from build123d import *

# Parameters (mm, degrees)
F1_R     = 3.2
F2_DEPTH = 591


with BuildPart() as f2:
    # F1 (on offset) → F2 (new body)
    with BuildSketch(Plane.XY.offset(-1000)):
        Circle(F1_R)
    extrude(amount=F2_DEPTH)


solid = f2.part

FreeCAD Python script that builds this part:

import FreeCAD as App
import Part
import Sketcher

doc = App.newDocument("Part")
body = doc.addObject("PartDesign::Body", "Body")

# Sketch on XY plane
sketch1 = body.newObject("Sketcher::SketchObject", "Sketch")
sketch1.AttachmentSupport = (doc.getObject("XY_Plane"), [""])
sketch1.MapMode = "FlatFace"
sketch1.AttachmentOffset = App.Placement(App.Vector(0, 0, -1000), App.Rotation())
sketch1.addGeometry(Part.Circle(App.Vector(0, 0, 0), App.Vector(0, 0, 1), 3.2), False)
sketch1.addConstraint(Sketcher.Constraint("Coincident", 0, 3, -1, 1))
sketch1.addConstraint(Sketcher.Constraint("Diameter", 0, 6.4))
pad1 = body.newObject("PartDesign::Pad", "Pad")
pad1.Profile = sketch1
pad1.Length = 591

doc.recompute()
